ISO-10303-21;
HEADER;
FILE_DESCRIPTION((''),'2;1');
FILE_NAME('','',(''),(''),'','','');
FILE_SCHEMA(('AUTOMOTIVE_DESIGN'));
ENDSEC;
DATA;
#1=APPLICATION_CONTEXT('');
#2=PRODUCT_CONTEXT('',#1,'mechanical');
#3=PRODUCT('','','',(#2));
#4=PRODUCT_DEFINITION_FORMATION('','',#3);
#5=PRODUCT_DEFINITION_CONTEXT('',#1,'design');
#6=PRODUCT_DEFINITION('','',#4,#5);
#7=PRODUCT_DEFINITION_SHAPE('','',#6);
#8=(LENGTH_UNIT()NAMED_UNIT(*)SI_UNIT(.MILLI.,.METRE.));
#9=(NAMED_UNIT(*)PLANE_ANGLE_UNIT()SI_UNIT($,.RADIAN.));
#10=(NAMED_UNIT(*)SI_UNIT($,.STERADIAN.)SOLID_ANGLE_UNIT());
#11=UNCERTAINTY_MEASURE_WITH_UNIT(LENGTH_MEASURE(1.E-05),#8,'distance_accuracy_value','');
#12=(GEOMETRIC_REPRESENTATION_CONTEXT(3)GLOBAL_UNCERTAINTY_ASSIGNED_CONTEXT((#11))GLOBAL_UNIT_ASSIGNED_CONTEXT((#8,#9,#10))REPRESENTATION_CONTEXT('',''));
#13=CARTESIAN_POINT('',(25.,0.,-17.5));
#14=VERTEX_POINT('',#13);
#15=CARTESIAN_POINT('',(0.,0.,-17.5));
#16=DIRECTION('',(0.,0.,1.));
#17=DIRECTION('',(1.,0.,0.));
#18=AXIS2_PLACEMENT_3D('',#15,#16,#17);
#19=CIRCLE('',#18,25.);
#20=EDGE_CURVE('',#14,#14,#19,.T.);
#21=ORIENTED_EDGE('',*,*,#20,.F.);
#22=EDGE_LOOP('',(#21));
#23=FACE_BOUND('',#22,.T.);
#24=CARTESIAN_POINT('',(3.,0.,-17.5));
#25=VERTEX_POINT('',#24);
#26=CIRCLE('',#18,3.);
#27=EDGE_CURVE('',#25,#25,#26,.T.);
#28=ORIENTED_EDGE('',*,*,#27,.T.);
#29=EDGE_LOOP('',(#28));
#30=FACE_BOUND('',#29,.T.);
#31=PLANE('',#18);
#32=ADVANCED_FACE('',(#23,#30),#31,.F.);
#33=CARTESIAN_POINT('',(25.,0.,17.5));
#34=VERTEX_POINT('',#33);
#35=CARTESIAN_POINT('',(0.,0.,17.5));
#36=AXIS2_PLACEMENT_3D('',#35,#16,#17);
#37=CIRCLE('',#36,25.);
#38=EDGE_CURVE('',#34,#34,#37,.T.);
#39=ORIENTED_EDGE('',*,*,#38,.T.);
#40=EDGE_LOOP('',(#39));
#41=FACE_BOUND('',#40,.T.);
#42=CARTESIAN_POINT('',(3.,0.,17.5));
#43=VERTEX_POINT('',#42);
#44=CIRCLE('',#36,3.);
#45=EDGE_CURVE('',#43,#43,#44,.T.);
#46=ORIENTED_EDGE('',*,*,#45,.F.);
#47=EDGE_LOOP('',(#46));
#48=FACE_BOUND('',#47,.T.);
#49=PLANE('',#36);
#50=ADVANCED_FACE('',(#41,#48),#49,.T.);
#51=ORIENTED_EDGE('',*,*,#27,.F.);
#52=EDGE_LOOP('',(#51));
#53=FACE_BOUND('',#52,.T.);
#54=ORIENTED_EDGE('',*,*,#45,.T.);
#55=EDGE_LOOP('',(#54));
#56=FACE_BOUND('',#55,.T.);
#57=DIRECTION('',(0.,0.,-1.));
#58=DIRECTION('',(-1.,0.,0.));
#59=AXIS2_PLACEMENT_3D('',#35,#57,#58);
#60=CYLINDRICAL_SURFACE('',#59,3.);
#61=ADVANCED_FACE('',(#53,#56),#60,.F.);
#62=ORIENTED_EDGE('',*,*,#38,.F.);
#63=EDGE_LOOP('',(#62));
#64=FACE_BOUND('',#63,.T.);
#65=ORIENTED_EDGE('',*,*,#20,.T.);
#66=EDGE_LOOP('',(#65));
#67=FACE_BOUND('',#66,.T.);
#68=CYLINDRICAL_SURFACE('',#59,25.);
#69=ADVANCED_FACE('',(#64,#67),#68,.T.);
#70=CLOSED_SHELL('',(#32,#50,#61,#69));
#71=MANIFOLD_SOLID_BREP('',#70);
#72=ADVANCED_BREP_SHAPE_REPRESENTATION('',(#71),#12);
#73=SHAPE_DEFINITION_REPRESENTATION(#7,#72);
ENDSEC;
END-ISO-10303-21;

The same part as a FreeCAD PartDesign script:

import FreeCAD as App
import Part
import Sketcher

V = App.Vector

doc = App.newDocument("Part")
body = doc.addObject("PartDesign::Body", "Body")

sketch1 = body.newObject("Sketcher::SketchObject", "Sketch")
sketch1.AttachmentSupport = (doc.getObject("XY_Plane"), [""])
sketch1.MapMode = "FlatFace"
sketch1.addGeometry(Part.Circle(V(0, 0, 0), V(0, 0, 1), 25), False)
sketch1.addGeometry(Part.Circle(V(0, 0, 0), V(0, 0, 1), 3), False)
sketch1.addConstraint(Sketcher.Constraint("Coincident", 0, 3, -1, 1))
sketch1.addConstraint(Sketcher.Constraint("Coincident", 1, 3, -1, 1))
sketch1.addConstraint(Sketcher.Constraint("Diameter", 0, 50.0))
sketch1.addConstraint(Sketcher.Constraint("Diameter", 1, 6.0))
pad1 = body.newObject("PartDesign::Pad", "Pad")
pad1.Profile = sketch1
pad1.Length = 35
pad1.Midplane = True

doc.recompute()
